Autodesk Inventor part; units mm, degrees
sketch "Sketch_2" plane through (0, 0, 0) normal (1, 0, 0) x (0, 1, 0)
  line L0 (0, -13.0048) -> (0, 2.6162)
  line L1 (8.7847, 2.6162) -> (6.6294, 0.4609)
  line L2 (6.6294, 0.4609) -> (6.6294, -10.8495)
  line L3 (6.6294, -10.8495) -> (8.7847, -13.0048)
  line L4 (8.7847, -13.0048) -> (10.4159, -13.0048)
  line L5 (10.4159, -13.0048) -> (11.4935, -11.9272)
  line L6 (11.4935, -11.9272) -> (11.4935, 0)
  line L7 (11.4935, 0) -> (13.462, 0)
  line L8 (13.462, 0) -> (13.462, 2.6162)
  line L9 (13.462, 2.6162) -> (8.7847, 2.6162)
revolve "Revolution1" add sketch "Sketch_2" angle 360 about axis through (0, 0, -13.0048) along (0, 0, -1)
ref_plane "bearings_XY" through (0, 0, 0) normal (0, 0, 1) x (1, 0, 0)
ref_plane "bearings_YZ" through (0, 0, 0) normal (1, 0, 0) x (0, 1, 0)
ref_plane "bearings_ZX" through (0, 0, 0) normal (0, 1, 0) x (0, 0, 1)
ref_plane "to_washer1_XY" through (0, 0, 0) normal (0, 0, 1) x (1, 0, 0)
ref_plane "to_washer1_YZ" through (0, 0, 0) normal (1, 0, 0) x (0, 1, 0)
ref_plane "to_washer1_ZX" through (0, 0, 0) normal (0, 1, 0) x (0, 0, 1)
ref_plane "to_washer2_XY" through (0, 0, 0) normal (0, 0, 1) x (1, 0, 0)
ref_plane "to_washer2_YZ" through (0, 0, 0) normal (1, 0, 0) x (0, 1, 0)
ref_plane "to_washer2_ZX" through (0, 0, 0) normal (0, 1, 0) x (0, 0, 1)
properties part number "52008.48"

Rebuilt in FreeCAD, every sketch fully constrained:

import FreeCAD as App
import Part
import Sketcher
Q = App.Units.Quantity

doc = App.newDocument("Part")
params = doc.addObject("Spreadsheet::Sheet", "Params")
for row, (alias, value) in enumerate([
    ("sketch1_length", "0.12 in"),
    ("sketch1_length2", "0.06 in"),
    ("sketch1_height", "0.103 in"),
    ("revolution_angle", "360 deg"),
], start=1):
    params.set(f"A{row}", alias)
    params.set(f"B{row}", "=" + value)
    params.setAlias(f"B{row}", alias)

body = doc.addObject("PartDesign::Body", "Body")

# Sketch on YZ plane
sketch1 = doc.addObject("Sketcher::SketchObject", "Sketch")
body.addObject(sketch1)
sketch1.AttachmentSupport = (doc.YZ_Plane, [""])
sketch1.MapMode = "FlatFace"
sketch1.addGeometry([
    Part.LineSegment(App.Vector(13.5, 2.6, 0), App.Vector(8.8, 2.6, 0)),  # 0
    Part.LineSegment(App.Vector(8.8, 2.6, 0), App.Vector(6.6, 0.5, 0)),  # 1
    Part.LineSegment(App.Vector(6.6, 0.5, 0), App.Vector(6.6, -10.8, 0)),  # 2
    Part.LineSegment(App.Vector(6.6, -10.8, 0), App.Vector(8.8, -13, 0)),  # 3
    Part.LineSegment(App.Vector(8.8, -13, 0), App.Vector(10.4, -13, 0)),  # 4
    Part.LineSegment(App.Vector(10.4, -13, 0), App.Vector(11.5, -11.9, 0)),  # 5
    Part.LineSegment(App.Vector(11.5, -11.9, 0), App.Vector(11.5, 0, 0)),  # 6
    Part.LineSegment(App.Vector(11.5, 0, 0), App.Vector(13.5, 0, 0)),  # 7
    Part.LineSegment(App.Vector(13.5, 0, 0), App.Vector(13.5, 2.6, 0)),  # 8
], False)
sketch1.addConstraint([
    Sketcher.Constraint("Coincident", 0, 2, 1, 1),
    Sketcher.Constraint("Coincident", 1, 2, 2, 1),
    Sketcher.Constraint("Coincident", 2, 2, 3, 1),
    Sketcher.Constraint("Coincident", 3, 2, 4, 1),
    Sketcher.Constraint("Coincident", 4, 2, 5, 1),
    Sketcher.Constraint("Coincident", 5, 2, 6, 1),
    Sketcher.Constraint("Coincident", 6, 2, 7, 1),
    Sketcher.Constraint("Coincident", 7, 2, 8, 1),
    Sketcher.Constraint("Coincident", 8, 2, 0, 1),
    Sketcher.Constraint("Horizontal", 0),
    Sketcher.Constraint("Vertical", 2),
    Sketcher.Constraint("Horizontal", 4),
    Sketcher.Constraint("Vertical", 6),
    Sketcher.Constraint("Horizontal", 7),
    Sketcher.Constraint("Vertical", 8),
    Sketcher.Constraint("PointOnObject", 6, 2, -1),
    Sketcher.Constraint("Perpendicular", 1, 3),
    Sketcher.Constraint("Perpendicular", 3, 5),
    Sketcher.Constraint("Vertical", 0, 2, 3, 2),
    Sketcher.Constraint("Equal", 1, 3),
    Sketcher.Constraint("Distance", 1, Q("0.12 in")),
    Sketcher.Constraint("Distance", 5, Q("0.06 in")),
    Sketcher.Constraint("DistanceY", 8, 1, 8, 2, Q("0.103 in")),
    Sketcher.Constraint("DistanceX", -1, 1, 7, 2, Q("0.53 in")),
    Sketcher.Constraint("DistanceX", 7, 1, 7, 2, Q("0.0775 in")),
    Sketcher.Constraint("DistanceY", 2, 2, 2, 1, Q("0.4453 in")),
    Sketcher.Constraint("DistanceX", -1, 1, 1, 2, Q("0.261 in")),
])
sketch1.setExpression("Constraints[20]", "Params.sketch1_length")
sketch1.setExpression("Constraints[21]", "Params.sketch1_length2")
sketch1.setExpression("Constraints[22]", "Params.sketch1_height")
revolution = doc.addObject("PartDesign::Revolution", "Revolution")
body.addObject(revolution)
revolution.Profile = sketch1
revolution.ReferenceAxis = (sketch1, ["V_Axis"])
revolution.setExpression("Angle", "Params.revolution_angle")

doc.recompute()
